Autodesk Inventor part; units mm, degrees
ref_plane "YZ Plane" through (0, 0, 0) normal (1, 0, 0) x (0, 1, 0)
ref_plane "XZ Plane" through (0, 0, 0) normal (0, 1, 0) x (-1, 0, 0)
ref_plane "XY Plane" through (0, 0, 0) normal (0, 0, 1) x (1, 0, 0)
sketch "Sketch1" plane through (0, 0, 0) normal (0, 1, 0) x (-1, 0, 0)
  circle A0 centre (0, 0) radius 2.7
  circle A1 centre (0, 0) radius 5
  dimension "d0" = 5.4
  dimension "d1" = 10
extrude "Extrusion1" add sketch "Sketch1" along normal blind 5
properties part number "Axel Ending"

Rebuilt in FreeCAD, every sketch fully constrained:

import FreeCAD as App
import Part
import Sketcher

V = App.Vector
Q = App.Units.Quantity

doc = App.newDocument("Part")
body = doc.addObject("PartDesign::Body", "Body")

# Sketch on XZ plane
sketch1 = doc.addObject("Sketcher::SketchObject", "Sketch")
body.addObject(sketch1)
sketch1.AttachmentSupport = (doc.XZ_Plane, [""])
sketch1.MapMode = "FlatFace"
sketch1.addGeometry([
    Part.Circle(V(0, 0, 0), V(0, 0, 1), 5),
    Part.Circle(V(0, 0, 0), V(0, 0, 1), 2.7),
], False)
sketch1.addConstraint([
    Sketcher.Constraint("Coincident", 0, 3, -1, 1),
    Sketcher.Constraint("Coincident", 1, 3, -1, 1),
    Sketcher.Constraint("Diameter", 0, Q("10 mm")),
    Sketcher.Constraint("Diameter", 1, Q("5.4 mm")),
])
pad1 = doc.addObject("PartDesign::Pad", "Pad")
body.addObject(pad1)
pad1.Profile = sketch1
pad1.Length = 5
pad1.Reversed = True

doc.recompute()
